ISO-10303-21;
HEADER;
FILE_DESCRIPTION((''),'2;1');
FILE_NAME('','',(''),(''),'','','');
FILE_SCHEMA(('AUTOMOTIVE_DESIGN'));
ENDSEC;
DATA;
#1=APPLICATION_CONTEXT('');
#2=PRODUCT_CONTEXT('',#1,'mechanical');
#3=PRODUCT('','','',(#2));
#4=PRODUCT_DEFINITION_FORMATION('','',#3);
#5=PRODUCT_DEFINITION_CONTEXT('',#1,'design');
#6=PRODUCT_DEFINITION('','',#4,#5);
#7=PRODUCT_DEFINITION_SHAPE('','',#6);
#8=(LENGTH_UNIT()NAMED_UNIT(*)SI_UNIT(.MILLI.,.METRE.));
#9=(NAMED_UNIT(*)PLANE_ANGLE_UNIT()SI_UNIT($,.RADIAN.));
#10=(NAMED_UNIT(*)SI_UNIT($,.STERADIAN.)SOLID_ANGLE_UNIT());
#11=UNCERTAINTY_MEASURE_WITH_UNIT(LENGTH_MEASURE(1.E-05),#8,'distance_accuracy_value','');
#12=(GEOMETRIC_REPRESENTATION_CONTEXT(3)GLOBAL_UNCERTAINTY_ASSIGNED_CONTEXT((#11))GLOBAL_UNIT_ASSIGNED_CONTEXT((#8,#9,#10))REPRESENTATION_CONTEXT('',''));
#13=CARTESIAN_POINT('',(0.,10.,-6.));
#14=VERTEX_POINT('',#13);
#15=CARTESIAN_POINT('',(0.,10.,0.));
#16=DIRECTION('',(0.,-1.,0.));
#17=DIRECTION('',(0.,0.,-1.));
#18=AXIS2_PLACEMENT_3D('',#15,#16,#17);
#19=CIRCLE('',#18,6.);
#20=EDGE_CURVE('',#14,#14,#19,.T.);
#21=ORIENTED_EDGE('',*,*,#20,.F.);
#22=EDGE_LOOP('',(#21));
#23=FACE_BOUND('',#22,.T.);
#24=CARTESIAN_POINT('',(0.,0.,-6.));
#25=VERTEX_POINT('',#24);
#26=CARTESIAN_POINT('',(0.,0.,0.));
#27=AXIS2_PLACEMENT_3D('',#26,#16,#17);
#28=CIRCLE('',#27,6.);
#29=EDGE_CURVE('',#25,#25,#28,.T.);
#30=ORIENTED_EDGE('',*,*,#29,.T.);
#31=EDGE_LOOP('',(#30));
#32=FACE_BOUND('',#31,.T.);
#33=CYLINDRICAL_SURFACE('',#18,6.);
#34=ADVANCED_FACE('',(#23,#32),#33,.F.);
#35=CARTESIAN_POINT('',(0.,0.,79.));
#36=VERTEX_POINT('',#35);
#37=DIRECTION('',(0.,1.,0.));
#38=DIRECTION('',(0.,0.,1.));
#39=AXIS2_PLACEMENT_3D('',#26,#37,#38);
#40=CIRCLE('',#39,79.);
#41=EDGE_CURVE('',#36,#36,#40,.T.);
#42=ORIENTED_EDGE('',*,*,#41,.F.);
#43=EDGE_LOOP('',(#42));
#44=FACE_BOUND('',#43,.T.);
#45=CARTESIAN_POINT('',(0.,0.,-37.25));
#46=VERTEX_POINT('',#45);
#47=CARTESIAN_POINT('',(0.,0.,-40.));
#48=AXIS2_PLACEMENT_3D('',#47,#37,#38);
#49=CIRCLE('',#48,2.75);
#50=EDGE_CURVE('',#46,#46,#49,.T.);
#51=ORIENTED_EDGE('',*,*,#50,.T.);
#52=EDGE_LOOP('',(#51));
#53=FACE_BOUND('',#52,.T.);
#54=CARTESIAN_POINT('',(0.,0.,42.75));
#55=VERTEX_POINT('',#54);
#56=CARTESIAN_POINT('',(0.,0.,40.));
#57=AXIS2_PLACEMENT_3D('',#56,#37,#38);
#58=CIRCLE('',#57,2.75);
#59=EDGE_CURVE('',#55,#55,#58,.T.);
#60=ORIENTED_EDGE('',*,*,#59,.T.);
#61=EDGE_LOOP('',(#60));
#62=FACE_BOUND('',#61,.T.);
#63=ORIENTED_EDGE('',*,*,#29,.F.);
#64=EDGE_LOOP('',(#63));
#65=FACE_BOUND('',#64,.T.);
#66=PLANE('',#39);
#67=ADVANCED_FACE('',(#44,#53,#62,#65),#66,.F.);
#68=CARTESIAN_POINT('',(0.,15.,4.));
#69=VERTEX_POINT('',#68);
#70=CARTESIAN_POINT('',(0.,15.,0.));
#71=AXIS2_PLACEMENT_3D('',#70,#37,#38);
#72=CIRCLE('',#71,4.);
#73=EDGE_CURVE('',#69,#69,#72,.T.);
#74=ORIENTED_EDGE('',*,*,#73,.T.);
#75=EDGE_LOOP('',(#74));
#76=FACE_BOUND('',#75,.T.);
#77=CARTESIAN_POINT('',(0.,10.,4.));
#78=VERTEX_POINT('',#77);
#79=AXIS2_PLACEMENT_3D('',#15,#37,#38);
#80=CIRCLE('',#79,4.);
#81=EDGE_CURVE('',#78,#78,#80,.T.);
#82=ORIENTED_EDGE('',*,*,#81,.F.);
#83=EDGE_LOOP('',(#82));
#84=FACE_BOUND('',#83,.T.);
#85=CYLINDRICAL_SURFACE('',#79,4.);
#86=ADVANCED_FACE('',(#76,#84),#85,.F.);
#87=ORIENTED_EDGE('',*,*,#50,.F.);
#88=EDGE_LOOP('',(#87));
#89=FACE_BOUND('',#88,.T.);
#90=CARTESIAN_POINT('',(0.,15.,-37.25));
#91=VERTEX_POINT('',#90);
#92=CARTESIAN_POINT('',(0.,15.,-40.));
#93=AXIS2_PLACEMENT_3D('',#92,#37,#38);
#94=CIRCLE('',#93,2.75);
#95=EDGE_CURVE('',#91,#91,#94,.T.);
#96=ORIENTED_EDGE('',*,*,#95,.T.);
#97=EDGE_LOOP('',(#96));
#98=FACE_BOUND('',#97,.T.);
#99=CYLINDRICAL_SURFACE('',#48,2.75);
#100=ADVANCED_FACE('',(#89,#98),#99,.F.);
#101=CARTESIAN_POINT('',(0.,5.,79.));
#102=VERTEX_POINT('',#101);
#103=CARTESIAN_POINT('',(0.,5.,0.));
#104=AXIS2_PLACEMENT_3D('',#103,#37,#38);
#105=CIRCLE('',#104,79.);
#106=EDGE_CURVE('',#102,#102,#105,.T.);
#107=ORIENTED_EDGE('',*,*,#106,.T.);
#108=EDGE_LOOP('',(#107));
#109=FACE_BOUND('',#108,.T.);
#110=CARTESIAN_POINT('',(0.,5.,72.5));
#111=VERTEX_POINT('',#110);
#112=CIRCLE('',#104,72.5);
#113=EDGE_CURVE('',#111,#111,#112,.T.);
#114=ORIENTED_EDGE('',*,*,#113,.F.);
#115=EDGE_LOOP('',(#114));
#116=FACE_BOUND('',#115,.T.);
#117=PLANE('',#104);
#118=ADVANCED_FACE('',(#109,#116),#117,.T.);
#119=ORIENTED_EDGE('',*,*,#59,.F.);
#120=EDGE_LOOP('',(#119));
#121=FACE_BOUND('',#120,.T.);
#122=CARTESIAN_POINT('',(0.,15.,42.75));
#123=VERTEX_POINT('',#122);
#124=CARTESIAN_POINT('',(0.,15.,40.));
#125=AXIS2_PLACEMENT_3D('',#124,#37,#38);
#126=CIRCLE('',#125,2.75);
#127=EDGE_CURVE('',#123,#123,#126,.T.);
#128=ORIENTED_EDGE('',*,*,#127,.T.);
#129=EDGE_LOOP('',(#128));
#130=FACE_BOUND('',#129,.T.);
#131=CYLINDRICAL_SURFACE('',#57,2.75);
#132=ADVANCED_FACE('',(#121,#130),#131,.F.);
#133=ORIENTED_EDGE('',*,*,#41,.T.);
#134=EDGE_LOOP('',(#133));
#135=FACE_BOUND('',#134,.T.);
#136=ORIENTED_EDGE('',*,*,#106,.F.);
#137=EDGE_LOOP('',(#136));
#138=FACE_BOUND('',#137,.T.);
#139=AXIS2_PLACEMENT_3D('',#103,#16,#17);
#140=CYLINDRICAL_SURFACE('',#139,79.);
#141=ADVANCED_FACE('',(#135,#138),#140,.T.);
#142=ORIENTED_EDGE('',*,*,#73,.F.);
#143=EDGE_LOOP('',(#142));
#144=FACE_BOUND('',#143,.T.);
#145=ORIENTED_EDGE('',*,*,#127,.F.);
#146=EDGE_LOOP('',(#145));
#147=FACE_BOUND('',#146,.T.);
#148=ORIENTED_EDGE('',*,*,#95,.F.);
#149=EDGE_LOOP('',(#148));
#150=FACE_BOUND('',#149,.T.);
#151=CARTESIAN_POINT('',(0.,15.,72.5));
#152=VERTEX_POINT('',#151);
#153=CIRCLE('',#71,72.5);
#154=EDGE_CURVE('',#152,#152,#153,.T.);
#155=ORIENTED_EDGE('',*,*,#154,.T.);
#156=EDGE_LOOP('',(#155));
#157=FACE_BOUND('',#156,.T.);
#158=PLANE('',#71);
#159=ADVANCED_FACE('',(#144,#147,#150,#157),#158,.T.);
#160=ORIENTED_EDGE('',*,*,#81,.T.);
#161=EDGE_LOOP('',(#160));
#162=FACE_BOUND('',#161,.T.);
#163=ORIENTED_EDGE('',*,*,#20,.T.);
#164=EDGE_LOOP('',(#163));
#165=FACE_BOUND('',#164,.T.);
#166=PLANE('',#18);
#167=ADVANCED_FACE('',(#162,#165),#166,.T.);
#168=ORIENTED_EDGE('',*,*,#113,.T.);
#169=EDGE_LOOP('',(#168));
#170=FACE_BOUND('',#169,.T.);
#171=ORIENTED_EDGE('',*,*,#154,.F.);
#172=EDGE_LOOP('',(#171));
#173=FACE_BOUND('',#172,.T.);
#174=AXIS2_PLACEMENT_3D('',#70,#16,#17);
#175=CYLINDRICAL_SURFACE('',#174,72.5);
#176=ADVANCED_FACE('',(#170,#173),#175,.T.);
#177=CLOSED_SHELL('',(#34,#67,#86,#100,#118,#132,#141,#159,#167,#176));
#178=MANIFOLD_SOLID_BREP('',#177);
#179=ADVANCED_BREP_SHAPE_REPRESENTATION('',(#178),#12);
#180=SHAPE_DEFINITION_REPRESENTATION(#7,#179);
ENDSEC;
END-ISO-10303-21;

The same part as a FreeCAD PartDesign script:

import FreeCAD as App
import Part
import Sketcher

doc = App.newDocument("Part")
body = doc.addObject("PartDesign::Body", "Body")

sketch1 = doc.addObject("Sketcher::SketchObject", "Sketch")
body.addObject(sketch1)
sketch1.AttachmentSupport = (doc.XZ_Plane, [""])
sketch1.MapMode = "FlatFace"
sketch1.addGeometry(Part.Circle(App.Vector(0, 0, 0), App.Vector(0, 0, 1), 79), False)
sketch1.addConstraint([
    Sketcher.Constraint("Coincident", 0, 3, -1, 1),
    Sketcher.Constraint("Diameter", 0, 158.0),
])
pad1 = doc.addObject("PartDesign::Pad", "Pad")
body.addObject(pad1)
pad1.Profile = sketch1
pad1.Length = 5
pad1.Reversed = True

sketch2 = doc.addObject("Sketcher::SketchObject", "Sketch001")
body.addObject(sketch2)
sketch2.AttachmentSupport = (doc.XZ_Plane, [""])
sketch2.MapMode = "FlatFace"
sketch2.AttachmentOffset = App.Placement(App.Vector(0, 0, -5), App.Rotation())
sketch2.addGeometry(Part.Circle(App.Vector(0, 0, 0), App.Vector(0, 0, 1), 72), False)
sketch2.addConstraint([
    Sketcher.Constraint("Coincident", 0, 3, -1, 1),
    Sketcher.Constraint("Diameter", 0, 145.0),
])
pad2 = doc.addObject("PartDesign::Pad", "Pad001")
body.addObject(pad2)
pad2.Profile = sketch2
pad2.Length = 10
pad2.Reversed = True

sketch3 = doc.addObject("Sketcher::SketchObject", "Sketch002")
body.addObject(sketch3)
sketch3.AttachmentSupport = (doc.XZ_Plane, [""])
sketch3.MapMode = "FlatFace"
sketch3.AttachmentOffset = App.Placement(App.Vector(0, 0, -15), App.Rotation())
sketch3.addGeometry([
    Part.Circle(App.Vector(0, -40, 0), App.Vector(0, 0, 1), 2.8),
    Part.Circle(App.Vector(0, 40, 0), App.Vector(0, 0, 1), 2.8),
], False)
sketch3.addConstraint([
    Sketcher.Constraint("Equal", 0, 1),
    Sketcher.Constraint("Symmetric", 0, 3, 1, 3, -1, 1),
    Sketcher.Constraint("PointOnObject", 0, 3, -2),
    Sketcher.Constraint("Diameter", 0, 5.5),
    Sketcher.Constraint("DistanceY", 0, 3, -1, 1, 40.0),
])
pocket1 = doc.addObject("PartDesign::Pocket", "Pocket")
body.addObject(pocket1)
pocket1.Profile = sketch3
pocket1.Type = "ThroughAll"
pocket1.Reversed = True

sketch4 = doc.addObject("Sketcher::SketchObject", "Sketch003")
body.addObject(sketch4)
sketch4.AttachmentSupport = (doc.XZ_Plane, [""])
sketch4.MapMode = "FlatFace"
sketch4.AttachmentOffset = App.Placement(App.Vector(0, 0, -15), App.Rotation())
sketch4.addGeometry(Part.Circle(App.Vector(0, 0, 0), App.Vector(0, 0, 1), 4), False)
sketch4.addConstraint([
    Sketcher.Constraint("Coincident", 0, 3, -1, 1),
    Sketcher.Constraint("Diameter", 0, 8.0),
])
pocket2 = doc.addObject("PartDesign::Pocket", "Pocket001")
body.addObject(pocket2)
pocket2.Profile = sketch4
pocket2.Length = 5
pocket2.Reversed = True

sketch5 = doc.addObject("Sketcher::SketchObject", "Sketch004")
body.addObject(sketch5)
sketch5.AttachmentSupport = (doc.XZ_Plane, [""])
sketch5.MapMode = "FlatFace"
sketch5.addGeometry(Part.Circle(App.Vector(0, 0, 0), App.Vector(0, 0, 1), 6), False)
sketch5.addConstraint([
    Sketcher.Constraint("Coincident", 0, 3, -1, 1),
    Sketcher.Constraint("Diameter", 0, 12.0),
])
pocket3 = doc.addObject("PartDesign::Pocket", "Pocket002")
body.addObject(pocket3)
pocket3.Profile = sketch5
pocket3.Length = 10

doc.recompute()
